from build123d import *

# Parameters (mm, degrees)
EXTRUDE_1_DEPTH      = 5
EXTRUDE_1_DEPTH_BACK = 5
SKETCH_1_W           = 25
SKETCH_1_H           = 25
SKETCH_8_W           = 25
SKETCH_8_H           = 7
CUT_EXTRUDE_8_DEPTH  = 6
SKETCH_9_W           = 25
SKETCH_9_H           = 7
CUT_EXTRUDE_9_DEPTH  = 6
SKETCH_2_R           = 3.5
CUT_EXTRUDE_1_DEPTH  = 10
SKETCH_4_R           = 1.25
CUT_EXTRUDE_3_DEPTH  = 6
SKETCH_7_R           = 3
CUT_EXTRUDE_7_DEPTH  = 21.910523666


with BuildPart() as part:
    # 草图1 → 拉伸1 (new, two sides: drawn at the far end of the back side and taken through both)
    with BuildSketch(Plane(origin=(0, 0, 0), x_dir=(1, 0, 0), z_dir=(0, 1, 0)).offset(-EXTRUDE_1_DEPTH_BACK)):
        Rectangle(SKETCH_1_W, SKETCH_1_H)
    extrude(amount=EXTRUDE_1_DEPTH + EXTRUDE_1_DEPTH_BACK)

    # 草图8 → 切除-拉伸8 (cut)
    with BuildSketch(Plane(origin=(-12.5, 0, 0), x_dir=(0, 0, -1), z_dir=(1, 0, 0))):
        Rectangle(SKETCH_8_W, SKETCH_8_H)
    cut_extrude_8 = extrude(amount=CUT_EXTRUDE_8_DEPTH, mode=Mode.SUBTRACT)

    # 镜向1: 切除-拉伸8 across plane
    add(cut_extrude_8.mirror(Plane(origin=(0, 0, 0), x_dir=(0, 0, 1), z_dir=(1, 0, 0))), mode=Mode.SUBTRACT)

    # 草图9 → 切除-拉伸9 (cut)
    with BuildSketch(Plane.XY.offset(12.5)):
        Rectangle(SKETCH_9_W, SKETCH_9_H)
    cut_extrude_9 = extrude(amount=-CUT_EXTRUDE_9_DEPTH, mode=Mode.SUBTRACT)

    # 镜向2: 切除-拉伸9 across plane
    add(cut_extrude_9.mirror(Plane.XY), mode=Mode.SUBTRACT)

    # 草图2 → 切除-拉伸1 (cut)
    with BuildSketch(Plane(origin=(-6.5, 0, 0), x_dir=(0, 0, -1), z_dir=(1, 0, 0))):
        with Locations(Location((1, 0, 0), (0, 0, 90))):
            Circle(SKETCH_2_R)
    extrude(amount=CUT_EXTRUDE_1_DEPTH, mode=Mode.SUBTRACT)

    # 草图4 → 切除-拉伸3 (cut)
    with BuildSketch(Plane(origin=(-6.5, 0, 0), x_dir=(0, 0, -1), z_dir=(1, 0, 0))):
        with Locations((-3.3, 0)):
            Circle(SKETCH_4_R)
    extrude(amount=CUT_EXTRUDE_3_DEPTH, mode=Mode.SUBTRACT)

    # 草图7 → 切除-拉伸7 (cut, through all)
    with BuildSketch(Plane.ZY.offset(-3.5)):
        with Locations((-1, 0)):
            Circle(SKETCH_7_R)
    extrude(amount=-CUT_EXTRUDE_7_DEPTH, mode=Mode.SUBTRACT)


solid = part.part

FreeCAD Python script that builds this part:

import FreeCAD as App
import Part
import Sketcher

V = App.Vector

doc = App.newDocument("Part")
body = doc.addObject("PartDesign::Body", "Body")

# Sketch on XZ plane
sketch1 = body.newObject("Sketcher::SketchObject", "Sketch")
sketch1.AttachmentSupport = (doc.getObject("XZ_Plane"), [""])
sketch1.MapMode = "FlatFace"
sketch1.addGeometry(Part.LineSegment(V(-12.5, -12.5, 0), V(-12.5, 12.5, 0)), False)
sketch1.addGeometry(Part.LineSegment(V(-12.5, 12.5, 0), V(12.5, 12.5, 0)), False)
sketch1.addGeometry(Part.LineSegment(V(12.5, 12.5, 0), V(12.5, -12.5, 0)), False)
sketch1.addGeometry(Part.LineSegment(V(12.5, -12.5, 0), V(-12.5, -12.5, 0)), False)
sketch1.addConstraint(Sketcher.Constraint("Coincident", 0, 2, 1, 1))
sketch1.addConstraint(Sketcher.Constraint("Coincident", 1, 2, 2, 1))
sketch1.addConstraint(Sketcher.Constraint("Coincident", 2, 2, 3, 1))
sketch1.addConstraint(Sketcher.Constraint("Coincident", 3, 2, 0, 1))
sketch1.addConstraint(Sketcher.Constraint("Vertical", 0))
sketch1.addConstraint(Sketcher.Constraint("Horizontal", 1))
sketch1.addConstraint(Sketcher.Constraint("Vertical", 2))
sketch1.addConstraint(Sketcher.Constraint("Horizontal", 3))
sketch1.addConstraint(Sketcher.Constraint("Symmetric", 0, 2, 2, 2, -1, 1))
sketch1.addConstraint(Sketcher.Constraint("Equal", 3, 0))
sketch1.addConstraint(Sketcher.Constraint("DistanceX", 1, 1, 1, 2, 25.0))
pad1 = body.newObject("PartDesign::Pad", "Pad")
pad1.Profile = sketch1
pad1.Type = "TwoLengths"
pad1.Length = 5
pad1.Length2 = 5
pad1.Reversed = True

# Sketch on YZ plane
sketch2 = body.newObject("Sketcher::SketchObject", "Sketch001")
sketch2.AttachmentSupport = (doc.getObject("YZ_Plane"), [""])
sketch2.MapMode = "FlatFace"
sketch2.AttachmentOffset = App.Placement(V(0, 0, -12.5), App.Rotation())
sketch2.addGeometry(Part.LineSegment(V(3.5, 12.5, 0), V(-3.5, 12.5, 0)), False)
sketch2.addGeometry(Part.LineSegment(V(-3.5, 12.5, 0), V(-3.5, -12.5, 0)), False)
sketch2.addGeometry(Part.LineSegment(V(-3.5, -12.5, 0), V(3.5, -12.5, 0)), False)
sketch2.addGeometry(Part.LineSegment(V(3.5, -12.5, 0), V(3.5, 12.5, 0)), False)
sketch2.addConstraint(Sketcher.Constraint("Coincident", 0, 2, 1, 1))
sketch2.addConstraint(Sketcher.Constraint("Coincident", 1, 2, 2, 1))
sketch2.addConstraint(Sketcher.Constraint("Coincident", 2, 2, 3, 1))
sketch2.addConstraint(Sketcher.Constraint("Coincident", 3, 2, 0, 1))
sketch2.addConstraint(Sketcher.Constraint("Horizontal", 0))
sketch2.addConstraint(Sketcher.Constraint("Vertical", 1))
sketch2.addConstraint(Sketcher.Constraint("Horizontal", 2))
sketch2.addConstraint(Sketcher.Constraint("Vertical", 3))
sketch2.addConstraint(Sketcher.Constraint("Symmetric", 0, 2, 2, 2, -1, 1))
sketch2.addConstraint(Sketcher.Constraint("DistanceX", 0, 2, 0, 1, 7.0))
sketch2.addConstraint(Sketcher.Constraint("DistanceY", 1, 2, 1, 1, 25.0))
pocket1 = body.newObject("PartDesign::Pocket", "Pocket")
pocket1.Profile = sketch2
pocket1.Length = 6
pocket1.Reversed = True
doc.recompute()

mirrored = body.newObject("PartDesign::Mirrored", "Mirrored")
mirrored.Originals = [pocket1]
mirrored.MirrorPlane = (doc.getObject("YZ_Plane"), [""])
body.Tip = mirrored

# Sketch on XY plane
sketch3 = body.newObject("Sketcher::SketchObject", "Sketch002")
sketch3.AttachmentSupport = (doc.getObject("XY_Plane"), [""])
sketch3.MapMode = "FlatFace"
sketch3.AttachmentOffset = App.Placement(V(0, 0, 12.5), App.Rotation())
sketch3.addGeometry(Part.LineSegment(V(-12.5, 3.5, 0), V(-12.5, -3.5, 0)), False)
sketch3.addGeometry(Part.LineSegment(V(-12.5, -3.5, 0), V(12.5, -3.5, 0)), False)
sketch3.addGeometry(Part.LineSegment(V(12.5, -3.5, 0), V(12.5, 3.5, 0)), False)
sketch3.addGeometry(Part.LineSegment(V(12.5, 3.5, 0), V(-12.5, 3.5, 0)), False)
sketch3.addConstraint(Sketcher.Constraint("Coincident", 0, 2, 1, 1))
sketch3.addConstraint(Sketcher.Constraint("Coincident", 1, 2, 2, 1))
sketch3.addConstraint(Sketcher.Constraint("Coincident", 2, 2, 3, 1))
sketch3.addConstraint(Sketcher.Constraint("Coincident", 3, 2, 0, 1))
sketch3.addConstraint(Sketcher.Constraint("Vertical", 0))
sketch3.addConstraint(Sketcher.Constraint("Horizontal", 1))
sketch3.addConstraint(Sketcher.Constraint("Vertical", 2))
sketch3.addConstraint(Sketcher.Constraint("Horizontal", 3))
sketch3.addConstraint(Sketcher.Constraint("Symmetric", 0, 2, 2, 2, -1, 1))
sketch3.addConstraint(Sketcher.Constraint("DistanceX", 1, 1, 1, 2, 25.0))
sketch3.addConstraint(Sketcher.Constraint("DistanceY", 0, 2, 0, 1, 7.0))
pocket2 = body.newObject("PartDesign::Pocket", "Pocket001")
pocket2.Profile = sketch3
pocket2.Length = 6
doc.recompute()

mirrored2 = body.newObject("PartDesign::Mirrored", "Mirrored001")
mirrored2.Originals = [pocket2]
mirrored2.MirrorPlane = (doc.getObject("XY_Plane"), [""])
body.Tip = mirrored2

# Sketch on YZ plane
sketch4 = body.newObject("Sketcher::SketchObject", "Sketch003")
sketch4.AttachmentSupport = (doc.getObject("YZ_Plane"), [""])
sketch4.MapMode = "FlatFace"
sketch4.AttachmentOffset = App.Placement(V(0, 0, -6.5), App.Rotation())
sketch4.addGeometry(Part.Circle(V(0, -1, 0), V(0, 0, 1), 3.5), False)
sketch4.addConstraint(Sketcher.Constraint("PointOnObject", 0, 3, -2))
sketch4.addConstraint(Sketcher.Constraint("Diameter", 0, 7.0))
sketch4.addConstraint(Sketcher.Constraint("DistanceY", 0, 3, -1, 1, 1.0))
pocket3 = body.newObject("PartDesign::Pocket", "Pocket002")
pocket3.Profile = sketch4
pocket3.Length = 10
pocket3.Reversed = True

# Sketch on YZ plane
sketch5 = body.newObject("Sketcher::SketchObject", "Sketch004")
sketch5.AttachmentSupport = (doc.getObject("YZ_Plane"), [""])
sketch5.MapMode = "FlatFace"
sketch5.AttachmentOffset = App.Placement(V(0, 0, -6.5), App.Rotation())
sketch5.addGeometry(Part.Circle(V(0, 3.3, 0), V(0, 0, 1), 1.25), False)
sketch5.addConstraint(Sketcher.Constraint("PointOnObject", 0, 3, -2))
sketch5.addConstraint(Sketcher.Constraint("Diameter", 0, 2.5))
sketch5.addConstraint(Sketcher.Constraint("DistanceY", -1, 1, 0, 3, 3.3))
pocket4 = body.newObject("PartDesign::Pocket", "Pocket003")
pocket4.Profile = sketch5
pocket4.Length = 6
pocket4.Reversed = True

# Sketch on YZ plane
sketch6 = body.newObject("Sketcher::SketchObject", "Sketch005")
sketch6.AttachmentSupport = (doc.getObject("YZ_Plane"), [""])
sketch6.MapMode = "FlatFace"
sketch6.AttachmentOffset = App.Placement(V(0, 0, 3.5), App.Rotation())
sketch6.addGeometry(Part.Circle(V(0, -1, 0), V(0, 0, 1), 3), False)
sketch6.addConstraint(Sketcher.Constraint("PointOnObject", 0, 3, -2))
sketch6.addConstraint(Sketcher.Constraint("Diameter", 0, 6.0))
sketch6.addConstraint(Sketcher.Constraint("DistanceY", 0, 3, -1, 1, 1.0))
pocket5 = body.newObject("PartDesign::Pocket", "Pocket004")
pocket5.Profile = sketch6
pocket5.Type = "ThroughAll"
pocket5.Reversed = True

doc.recompute()
